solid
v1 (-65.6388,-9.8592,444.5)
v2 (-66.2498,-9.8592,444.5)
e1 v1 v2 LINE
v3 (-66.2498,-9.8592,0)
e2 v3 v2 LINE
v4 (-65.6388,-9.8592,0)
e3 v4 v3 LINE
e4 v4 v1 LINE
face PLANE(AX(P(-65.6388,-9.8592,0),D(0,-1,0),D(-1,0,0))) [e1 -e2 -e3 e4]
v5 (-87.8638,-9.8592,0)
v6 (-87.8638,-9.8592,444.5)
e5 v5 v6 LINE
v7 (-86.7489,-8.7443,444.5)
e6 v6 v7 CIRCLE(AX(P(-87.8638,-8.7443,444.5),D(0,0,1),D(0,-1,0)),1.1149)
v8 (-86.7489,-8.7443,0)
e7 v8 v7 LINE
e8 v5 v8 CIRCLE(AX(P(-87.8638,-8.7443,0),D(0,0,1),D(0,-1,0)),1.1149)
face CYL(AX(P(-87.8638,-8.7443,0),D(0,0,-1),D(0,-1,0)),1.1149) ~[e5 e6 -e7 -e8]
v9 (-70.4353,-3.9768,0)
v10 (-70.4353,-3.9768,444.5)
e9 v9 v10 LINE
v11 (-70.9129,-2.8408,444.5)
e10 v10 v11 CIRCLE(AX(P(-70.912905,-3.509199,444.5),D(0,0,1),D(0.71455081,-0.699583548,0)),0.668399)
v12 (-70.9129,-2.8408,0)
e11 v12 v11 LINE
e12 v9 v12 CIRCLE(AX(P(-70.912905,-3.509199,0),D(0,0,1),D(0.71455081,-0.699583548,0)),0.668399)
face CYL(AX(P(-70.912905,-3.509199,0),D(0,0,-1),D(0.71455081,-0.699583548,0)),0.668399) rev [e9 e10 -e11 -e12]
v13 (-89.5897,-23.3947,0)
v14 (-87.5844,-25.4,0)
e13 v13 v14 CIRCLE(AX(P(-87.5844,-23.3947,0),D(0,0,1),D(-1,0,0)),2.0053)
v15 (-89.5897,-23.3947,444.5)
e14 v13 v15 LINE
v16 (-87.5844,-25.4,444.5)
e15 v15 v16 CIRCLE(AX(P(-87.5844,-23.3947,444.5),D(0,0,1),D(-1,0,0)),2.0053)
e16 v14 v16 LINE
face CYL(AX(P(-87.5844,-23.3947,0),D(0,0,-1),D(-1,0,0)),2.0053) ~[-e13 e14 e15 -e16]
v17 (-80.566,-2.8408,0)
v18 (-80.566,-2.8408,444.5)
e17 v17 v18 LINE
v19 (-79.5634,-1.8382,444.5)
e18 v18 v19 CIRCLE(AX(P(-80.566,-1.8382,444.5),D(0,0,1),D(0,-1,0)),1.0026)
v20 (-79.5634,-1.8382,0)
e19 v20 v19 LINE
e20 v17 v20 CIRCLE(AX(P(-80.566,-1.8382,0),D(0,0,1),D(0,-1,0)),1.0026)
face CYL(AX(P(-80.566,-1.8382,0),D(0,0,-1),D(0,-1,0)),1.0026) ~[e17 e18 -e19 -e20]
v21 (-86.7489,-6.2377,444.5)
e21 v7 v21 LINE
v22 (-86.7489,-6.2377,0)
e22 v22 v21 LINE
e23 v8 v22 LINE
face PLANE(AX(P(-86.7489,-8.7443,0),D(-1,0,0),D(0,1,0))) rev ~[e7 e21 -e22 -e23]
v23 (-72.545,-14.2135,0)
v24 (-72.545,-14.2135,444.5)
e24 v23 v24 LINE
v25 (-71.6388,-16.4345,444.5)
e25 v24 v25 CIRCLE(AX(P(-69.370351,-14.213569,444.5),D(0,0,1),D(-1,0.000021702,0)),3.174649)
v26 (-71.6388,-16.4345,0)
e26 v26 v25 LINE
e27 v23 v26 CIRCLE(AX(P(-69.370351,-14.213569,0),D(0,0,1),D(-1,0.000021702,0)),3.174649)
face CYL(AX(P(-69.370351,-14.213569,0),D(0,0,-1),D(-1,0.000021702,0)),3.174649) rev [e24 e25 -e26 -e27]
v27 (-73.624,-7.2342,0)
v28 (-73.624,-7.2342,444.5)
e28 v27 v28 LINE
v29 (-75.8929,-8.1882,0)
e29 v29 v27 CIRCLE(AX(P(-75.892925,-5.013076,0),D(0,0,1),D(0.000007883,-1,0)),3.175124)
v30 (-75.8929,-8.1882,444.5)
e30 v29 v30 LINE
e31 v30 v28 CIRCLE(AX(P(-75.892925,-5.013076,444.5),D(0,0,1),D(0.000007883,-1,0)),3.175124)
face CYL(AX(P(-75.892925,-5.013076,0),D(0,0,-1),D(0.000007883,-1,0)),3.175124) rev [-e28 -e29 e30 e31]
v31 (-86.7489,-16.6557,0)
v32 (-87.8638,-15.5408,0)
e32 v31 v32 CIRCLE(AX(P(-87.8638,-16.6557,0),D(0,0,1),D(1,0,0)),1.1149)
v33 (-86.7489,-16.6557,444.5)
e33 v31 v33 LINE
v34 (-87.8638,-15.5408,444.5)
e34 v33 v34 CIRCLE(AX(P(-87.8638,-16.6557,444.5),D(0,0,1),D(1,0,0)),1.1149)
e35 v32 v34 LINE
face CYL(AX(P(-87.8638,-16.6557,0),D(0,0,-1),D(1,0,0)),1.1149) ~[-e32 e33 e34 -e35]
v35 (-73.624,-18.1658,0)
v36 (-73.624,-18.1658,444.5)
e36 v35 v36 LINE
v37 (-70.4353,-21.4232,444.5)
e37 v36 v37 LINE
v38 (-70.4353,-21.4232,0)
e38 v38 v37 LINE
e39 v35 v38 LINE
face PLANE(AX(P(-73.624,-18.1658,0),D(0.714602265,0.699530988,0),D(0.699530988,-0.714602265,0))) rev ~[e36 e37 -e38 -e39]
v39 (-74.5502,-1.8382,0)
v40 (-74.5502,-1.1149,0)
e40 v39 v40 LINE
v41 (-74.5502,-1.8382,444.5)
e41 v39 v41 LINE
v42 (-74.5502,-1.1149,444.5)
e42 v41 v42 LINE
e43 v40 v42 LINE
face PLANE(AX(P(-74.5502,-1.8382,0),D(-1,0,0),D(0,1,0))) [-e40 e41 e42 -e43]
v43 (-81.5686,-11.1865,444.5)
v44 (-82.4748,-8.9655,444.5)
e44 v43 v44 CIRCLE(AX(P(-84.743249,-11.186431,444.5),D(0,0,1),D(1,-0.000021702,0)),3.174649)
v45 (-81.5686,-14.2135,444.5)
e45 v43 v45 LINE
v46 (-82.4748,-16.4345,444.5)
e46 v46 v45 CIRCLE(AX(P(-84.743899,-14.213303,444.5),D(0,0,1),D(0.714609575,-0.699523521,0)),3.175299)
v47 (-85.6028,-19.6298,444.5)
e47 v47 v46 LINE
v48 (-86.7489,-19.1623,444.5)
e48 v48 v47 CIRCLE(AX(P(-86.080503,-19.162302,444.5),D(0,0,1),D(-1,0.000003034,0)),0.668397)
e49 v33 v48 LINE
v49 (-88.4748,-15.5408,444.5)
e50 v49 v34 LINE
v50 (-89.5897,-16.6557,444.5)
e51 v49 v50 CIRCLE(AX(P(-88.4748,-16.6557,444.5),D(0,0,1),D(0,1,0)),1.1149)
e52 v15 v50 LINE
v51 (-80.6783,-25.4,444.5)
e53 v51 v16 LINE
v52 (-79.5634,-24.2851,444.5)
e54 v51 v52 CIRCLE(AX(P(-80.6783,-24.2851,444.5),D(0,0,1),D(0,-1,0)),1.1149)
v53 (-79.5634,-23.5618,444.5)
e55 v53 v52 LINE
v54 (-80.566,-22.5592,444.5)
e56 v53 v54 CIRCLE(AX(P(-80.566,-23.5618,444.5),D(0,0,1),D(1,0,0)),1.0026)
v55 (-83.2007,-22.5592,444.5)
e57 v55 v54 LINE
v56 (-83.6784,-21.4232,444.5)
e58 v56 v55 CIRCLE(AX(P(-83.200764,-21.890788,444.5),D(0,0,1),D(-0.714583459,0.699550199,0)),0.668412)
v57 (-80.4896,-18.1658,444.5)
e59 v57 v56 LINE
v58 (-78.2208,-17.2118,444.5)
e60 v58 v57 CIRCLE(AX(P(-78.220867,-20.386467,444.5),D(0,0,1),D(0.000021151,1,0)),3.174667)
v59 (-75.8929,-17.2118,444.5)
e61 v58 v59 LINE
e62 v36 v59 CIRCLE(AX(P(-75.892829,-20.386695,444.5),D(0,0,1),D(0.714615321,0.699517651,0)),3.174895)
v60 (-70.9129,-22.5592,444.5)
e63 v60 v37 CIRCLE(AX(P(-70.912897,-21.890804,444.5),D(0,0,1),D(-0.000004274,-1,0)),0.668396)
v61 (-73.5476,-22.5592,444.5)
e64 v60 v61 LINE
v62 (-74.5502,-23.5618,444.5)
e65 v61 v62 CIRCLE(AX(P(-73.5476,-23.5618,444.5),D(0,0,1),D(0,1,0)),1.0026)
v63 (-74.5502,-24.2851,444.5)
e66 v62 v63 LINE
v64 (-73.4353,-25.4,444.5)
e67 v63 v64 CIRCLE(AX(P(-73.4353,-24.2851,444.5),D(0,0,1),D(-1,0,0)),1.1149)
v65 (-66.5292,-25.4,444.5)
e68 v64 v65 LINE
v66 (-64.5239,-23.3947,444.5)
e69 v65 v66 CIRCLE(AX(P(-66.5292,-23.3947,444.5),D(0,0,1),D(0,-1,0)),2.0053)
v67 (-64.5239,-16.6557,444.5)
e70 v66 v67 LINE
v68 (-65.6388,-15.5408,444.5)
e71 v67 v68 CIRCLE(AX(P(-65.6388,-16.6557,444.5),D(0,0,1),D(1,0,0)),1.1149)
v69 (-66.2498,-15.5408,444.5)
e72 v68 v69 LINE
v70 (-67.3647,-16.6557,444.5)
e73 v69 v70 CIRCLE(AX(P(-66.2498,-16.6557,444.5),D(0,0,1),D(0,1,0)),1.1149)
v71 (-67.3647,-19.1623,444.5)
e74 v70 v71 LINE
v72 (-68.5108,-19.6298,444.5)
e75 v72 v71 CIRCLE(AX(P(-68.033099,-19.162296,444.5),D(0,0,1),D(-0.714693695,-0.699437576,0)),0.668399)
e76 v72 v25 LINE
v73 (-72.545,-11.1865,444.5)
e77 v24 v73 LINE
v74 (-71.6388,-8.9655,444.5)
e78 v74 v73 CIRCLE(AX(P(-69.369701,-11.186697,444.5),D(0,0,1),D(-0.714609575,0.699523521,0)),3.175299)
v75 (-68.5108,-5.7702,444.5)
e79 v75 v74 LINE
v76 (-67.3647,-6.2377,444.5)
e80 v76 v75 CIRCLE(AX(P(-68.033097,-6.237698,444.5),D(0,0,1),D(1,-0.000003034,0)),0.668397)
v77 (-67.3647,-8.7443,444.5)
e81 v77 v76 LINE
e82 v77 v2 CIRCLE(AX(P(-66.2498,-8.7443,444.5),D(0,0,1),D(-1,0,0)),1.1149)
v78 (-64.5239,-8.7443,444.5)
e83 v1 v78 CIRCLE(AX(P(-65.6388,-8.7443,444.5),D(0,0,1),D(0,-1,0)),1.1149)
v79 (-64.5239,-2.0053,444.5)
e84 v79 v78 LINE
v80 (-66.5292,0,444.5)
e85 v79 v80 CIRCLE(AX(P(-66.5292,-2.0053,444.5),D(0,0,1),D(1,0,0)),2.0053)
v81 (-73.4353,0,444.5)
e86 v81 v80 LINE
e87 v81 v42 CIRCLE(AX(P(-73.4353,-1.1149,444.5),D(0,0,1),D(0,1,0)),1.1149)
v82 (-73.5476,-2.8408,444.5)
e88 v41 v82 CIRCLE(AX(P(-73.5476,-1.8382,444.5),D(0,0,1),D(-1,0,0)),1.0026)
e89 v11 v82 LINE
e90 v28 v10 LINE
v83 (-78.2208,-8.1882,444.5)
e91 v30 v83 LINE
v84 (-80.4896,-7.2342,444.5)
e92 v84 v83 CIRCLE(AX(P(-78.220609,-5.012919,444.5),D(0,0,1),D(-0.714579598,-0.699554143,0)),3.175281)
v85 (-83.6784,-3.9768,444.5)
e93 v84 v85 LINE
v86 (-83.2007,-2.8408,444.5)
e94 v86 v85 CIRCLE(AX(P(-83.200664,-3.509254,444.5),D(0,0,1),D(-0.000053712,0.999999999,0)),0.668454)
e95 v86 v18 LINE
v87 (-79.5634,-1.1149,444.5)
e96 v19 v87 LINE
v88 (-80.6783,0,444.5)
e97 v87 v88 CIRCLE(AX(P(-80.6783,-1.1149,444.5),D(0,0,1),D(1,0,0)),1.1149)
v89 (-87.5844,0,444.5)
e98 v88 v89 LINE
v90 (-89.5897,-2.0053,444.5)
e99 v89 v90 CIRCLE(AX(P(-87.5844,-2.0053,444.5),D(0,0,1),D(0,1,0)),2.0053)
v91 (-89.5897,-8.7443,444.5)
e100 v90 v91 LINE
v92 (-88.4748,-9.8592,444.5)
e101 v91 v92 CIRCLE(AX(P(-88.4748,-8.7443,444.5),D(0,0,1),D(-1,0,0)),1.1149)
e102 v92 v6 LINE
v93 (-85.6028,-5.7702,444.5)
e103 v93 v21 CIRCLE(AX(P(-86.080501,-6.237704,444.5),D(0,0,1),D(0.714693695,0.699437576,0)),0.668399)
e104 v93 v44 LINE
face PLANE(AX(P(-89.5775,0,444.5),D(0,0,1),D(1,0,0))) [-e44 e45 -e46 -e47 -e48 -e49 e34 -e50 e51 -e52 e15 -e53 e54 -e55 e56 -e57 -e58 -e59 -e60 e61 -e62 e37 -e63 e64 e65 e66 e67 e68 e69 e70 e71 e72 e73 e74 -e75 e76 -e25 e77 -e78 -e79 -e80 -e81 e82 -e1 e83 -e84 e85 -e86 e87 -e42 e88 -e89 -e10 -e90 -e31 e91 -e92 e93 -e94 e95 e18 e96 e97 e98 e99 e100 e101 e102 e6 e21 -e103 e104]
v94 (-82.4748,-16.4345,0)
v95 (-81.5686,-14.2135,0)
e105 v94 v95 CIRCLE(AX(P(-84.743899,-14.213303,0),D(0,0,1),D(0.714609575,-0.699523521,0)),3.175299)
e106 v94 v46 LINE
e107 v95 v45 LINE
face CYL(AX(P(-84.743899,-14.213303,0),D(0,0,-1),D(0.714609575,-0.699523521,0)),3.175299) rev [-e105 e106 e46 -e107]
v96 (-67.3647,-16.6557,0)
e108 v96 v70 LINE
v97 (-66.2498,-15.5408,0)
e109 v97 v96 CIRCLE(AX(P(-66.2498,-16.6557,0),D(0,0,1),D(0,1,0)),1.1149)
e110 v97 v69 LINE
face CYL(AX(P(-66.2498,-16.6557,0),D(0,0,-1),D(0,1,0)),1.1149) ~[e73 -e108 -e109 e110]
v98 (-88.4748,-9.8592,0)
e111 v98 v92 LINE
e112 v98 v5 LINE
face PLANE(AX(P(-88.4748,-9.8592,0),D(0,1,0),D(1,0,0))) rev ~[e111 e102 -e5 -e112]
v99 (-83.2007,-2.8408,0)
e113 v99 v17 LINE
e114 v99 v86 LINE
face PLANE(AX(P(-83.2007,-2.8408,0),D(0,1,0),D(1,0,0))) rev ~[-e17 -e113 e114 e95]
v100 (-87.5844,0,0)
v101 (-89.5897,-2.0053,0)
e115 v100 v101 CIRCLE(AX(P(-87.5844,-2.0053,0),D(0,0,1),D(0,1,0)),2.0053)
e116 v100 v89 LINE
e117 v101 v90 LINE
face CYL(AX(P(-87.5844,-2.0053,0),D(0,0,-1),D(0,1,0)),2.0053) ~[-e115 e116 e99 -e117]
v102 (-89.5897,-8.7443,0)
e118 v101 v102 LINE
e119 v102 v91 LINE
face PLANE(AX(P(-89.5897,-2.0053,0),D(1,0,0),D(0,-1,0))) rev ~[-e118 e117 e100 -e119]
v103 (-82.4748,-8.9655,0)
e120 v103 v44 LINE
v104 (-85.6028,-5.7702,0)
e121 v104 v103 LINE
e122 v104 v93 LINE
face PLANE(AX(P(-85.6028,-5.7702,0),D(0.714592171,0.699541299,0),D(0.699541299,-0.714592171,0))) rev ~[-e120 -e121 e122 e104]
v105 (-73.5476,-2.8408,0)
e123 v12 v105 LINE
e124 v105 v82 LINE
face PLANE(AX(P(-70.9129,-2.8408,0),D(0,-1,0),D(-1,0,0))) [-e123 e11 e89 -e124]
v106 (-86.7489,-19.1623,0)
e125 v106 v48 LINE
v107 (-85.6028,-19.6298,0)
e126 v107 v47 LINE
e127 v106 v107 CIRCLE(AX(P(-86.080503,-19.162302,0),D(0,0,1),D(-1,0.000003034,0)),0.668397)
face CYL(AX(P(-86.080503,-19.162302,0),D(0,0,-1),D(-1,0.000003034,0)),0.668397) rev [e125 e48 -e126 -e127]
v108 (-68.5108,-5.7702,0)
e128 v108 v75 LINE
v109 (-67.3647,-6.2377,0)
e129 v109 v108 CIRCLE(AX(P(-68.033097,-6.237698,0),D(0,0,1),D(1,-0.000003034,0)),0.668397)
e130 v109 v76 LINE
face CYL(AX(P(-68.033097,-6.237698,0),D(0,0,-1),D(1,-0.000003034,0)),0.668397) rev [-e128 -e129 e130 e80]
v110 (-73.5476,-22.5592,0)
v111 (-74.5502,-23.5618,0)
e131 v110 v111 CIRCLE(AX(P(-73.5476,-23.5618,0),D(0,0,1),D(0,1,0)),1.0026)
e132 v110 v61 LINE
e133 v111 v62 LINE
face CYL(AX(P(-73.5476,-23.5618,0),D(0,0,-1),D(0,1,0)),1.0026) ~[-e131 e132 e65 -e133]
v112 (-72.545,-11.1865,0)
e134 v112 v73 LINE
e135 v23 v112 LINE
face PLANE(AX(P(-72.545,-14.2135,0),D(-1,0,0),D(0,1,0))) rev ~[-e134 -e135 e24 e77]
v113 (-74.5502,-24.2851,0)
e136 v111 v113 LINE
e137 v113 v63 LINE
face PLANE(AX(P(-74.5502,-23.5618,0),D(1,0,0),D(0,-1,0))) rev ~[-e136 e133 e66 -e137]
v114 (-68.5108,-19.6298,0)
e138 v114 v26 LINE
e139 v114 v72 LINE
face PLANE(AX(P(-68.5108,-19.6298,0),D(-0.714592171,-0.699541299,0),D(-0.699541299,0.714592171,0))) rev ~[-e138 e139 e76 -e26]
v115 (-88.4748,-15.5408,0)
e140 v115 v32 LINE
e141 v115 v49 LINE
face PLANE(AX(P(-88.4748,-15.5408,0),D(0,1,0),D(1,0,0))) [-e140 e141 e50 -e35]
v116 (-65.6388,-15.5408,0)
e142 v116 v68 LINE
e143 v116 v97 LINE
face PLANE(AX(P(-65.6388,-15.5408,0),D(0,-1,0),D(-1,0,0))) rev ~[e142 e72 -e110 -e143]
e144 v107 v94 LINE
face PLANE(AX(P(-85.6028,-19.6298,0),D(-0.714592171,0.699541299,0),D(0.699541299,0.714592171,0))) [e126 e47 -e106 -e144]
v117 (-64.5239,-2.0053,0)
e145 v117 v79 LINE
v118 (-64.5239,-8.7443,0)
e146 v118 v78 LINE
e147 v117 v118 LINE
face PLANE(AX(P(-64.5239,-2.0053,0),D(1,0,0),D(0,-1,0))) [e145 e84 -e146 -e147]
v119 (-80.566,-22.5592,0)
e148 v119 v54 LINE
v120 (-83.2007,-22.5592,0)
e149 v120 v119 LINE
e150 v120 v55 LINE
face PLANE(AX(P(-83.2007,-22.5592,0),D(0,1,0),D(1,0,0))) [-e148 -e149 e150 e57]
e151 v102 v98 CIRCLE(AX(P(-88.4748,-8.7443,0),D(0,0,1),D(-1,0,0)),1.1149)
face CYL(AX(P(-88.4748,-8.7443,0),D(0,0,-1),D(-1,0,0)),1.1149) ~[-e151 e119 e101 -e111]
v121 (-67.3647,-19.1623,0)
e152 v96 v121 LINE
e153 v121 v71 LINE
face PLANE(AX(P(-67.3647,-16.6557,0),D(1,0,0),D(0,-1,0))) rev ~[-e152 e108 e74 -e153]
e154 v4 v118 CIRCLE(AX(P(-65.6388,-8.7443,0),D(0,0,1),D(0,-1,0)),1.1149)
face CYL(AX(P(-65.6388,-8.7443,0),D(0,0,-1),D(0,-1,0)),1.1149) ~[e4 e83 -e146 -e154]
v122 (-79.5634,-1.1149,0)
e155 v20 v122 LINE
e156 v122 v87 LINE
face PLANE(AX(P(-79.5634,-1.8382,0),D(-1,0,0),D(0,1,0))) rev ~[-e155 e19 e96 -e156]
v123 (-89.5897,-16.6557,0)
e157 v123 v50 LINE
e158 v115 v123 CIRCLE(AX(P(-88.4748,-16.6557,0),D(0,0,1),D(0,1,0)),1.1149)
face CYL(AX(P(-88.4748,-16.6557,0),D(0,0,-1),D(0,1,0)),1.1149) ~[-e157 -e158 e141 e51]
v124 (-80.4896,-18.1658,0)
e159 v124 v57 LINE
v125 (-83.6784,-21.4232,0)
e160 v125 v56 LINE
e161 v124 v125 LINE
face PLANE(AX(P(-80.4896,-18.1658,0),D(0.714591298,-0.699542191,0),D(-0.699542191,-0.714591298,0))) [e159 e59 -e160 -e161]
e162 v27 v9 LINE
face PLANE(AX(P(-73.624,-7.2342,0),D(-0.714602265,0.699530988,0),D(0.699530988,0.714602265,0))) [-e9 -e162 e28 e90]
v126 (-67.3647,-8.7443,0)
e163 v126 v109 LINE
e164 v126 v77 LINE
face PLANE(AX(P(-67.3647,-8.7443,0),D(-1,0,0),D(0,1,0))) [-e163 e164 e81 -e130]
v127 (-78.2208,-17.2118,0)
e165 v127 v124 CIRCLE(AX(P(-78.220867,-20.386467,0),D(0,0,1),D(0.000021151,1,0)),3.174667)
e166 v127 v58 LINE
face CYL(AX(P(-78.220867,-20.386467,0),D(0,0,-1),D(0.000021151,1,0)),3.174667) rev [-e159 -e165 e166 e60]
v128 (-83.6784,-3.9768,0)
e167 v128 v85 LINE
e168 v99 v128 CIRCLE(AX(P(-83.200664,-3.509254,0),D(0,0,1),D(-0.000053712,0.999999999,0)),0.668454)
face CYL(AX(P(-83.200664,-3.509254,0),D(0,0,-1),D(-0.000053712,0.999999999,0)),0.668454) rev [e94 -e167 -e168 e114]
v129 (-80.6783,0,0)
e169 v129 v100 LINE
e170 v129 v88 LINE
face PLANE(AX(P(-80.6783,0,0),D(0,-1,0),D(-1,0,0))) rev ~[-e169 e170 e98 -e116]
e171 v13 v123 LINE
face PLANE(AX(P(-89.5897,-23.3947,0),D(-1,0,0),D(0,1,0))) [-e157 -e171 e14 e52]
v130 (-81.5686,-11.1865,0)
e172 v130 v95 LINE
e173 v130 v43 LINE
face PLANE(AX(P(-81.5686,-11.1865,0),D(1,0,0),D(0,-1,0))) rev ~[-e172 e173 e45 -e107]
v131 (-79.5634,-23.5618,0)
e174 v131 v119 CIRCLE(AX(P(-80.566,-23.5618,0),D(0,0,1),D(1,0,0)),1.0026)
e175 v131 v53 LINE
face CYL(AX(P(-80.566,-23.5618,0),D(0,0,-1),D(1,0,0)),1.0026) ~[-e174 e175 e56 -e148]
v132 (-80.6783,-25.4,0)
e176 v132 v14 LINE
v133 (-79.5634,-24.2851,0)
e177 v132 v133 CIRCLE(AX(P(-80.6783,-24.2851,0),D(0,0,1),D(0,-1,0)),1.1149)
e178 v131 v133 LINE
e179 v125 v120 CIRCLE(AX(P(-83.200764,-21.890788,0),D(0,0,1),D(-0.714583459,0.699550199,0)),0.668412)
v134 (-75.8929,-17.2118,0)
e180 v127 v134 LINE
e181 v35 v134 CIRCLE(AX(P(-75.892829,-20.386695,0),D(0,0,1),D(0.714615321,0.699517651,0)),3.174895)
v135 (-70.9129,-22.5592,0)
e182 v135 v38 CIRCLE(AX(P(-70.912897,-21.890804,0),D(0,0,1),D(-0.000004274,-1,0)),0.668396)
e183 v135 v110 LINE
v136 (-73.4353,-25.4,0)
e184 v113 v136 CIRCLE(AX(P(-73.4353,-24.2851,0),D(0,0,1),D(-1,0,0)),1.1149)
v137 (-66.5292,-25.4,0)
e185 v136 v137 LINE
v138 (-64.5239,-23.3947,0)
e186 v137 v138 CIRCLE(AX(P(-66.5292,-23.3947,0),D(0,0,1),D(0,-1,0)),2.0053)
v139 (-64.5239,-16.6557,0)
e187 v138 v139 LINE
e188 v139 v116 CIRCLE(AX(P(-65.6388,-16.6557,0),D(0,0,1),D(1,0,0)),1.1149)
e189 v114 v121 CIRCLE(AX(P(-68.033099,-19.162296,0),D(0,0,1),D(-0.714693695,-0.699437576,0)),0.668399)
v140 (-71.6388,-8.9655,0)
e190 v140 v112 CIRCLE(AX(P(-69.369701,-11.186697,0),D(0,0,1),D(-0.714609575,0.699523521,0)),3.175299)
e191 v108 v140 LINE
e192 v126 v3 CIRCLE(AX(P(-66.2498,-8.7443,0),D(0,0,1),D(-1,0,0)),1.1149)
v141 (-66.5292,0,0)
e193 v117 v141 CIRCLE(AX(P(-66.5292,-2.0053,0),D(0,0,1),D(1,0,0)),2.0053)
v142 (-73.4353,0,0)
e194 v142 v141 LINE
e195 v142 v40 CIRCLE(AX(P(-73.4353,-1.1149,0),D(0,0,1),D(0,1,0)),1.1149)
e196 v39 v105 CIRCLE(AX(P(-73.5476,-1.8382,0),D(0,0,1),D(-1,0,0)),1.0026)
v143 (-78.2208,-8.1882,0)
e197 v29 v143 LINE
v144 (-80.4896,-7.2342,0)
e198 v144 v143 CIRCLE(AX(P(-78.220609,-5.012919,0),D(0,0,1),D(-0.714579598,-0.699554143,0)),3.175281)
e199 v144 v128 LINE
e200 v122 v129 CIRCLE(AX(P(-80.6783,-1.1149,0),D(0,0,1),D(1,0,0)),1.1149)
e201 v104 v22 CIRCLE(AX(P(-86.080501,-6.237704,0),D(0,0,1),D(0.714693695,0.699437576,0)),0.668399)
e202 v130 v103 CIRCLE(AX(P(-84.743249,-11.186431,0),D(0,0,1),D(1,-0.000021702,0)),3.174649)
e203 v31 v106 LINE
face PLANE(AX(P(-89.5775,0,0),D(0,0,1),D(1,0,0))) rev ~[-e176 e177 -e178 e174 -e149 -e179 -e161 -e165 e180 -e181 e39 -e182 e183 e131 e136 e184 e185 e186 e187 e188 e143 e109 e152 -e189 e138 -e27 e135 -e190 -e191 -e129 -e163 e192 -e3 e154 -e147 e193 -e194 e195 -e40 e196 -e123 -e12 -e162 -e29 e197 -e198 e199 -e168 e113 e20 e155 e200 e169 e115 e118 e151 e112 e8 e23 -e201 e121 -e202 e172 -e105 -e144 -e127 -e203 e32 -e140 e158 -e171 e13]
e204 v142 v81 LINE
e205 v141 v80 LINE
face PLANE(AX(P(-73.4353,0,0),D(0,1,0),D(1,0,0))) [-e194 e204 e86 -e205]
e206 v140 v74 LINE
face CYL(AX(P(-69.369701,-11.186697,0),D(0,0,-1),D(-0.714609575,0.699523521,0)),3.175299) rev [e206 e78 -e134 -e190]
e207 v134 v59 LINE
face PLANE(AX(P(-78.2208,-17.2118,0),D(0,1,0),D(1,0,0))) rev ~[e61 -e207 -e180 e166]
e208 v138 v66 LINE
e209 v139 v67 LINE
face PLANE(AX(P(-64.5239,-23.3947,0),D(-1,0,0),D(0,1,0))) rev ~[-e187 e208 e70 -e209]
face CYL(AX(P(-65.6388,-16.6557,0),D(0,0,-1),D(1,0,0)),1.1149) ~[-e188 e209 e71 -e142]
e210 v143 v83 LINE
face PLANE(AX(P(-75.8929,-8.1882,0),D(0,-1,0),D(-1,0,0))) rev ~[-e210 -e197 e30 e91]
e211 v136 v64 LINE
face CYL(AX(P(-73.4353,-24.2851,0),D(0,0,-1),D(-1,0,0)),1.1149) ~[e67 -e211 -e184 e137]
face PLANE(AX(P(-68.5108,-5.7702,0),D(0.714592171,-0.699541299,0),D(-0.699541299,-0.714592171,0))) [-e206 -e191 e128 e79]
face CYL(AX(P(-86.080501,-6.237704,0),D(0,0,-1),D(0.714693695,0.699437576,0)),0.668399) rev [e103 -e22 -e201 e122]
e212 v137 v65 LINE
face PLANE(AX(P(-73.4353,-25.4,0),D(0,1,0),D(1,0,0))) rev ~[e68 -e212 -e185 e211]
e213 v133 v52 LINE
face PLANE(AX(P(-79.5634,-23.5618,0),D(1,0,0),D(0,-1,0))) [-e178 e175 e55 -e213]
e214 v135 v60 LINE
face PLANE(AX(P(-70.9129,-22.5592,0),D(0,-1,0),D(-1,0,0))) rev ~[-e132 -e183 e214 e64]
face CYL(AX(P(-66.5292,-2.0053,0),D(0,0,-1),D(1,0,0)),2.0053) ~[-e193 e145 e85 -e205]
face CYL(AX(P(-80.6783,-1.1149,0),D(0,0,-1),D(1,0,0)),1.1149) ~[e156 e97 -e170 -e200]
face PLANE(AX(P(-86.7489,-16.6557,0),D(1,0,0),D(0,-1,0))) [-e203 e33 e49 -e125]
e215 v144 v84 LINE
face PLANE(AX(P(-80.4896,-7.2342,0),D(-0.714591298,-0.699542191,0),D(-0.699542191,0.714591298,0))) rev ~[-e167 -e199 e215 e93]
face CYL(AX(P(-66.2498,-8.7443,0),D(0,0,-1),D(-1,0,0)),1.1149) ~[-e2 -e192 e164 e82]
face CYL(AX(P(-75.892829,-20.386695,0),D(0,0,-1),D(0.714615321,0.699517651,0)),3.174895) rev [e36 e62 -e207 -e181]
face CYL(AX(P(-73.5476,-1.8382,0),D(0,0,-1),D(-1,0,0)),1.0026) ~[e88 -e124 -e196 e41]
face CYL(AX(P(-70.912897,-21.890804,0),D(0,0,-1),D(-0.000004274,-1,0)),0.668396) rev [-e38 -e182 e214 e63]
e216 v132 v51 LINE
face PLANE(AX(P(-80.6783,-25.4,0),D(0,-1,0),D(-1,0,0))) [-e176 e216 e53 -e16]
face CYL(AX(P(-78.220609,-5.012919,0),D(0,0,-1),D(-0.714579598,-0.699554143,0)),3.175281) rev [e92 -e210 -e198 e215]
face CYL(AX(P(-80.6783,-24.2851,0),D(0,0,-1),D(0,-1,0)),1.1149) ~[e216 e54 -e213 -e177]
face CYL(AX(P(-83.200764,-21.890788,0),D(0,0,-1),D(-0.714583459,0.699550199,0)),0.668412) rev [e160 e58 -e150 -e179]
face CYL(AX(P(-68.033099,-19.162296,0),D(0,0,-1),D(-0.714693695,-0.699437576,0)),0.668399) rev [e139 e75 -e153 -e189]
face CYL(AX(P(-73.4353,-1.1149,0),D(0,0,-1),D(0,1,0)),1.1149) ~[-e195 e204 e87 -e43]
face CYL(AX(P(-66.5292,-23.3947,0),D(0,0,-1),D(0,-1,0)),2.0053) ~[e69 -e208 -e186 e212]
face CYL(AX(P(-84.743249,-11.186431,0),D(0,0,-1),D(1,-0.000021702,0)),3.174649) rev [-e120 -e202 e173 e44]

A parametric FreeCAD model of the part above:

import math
import FreeCAD as App
import Part
import Sketcher
Q = App.Units.Quantity

doc = App.newDocument("Part")
body = doc.addObject("PartDesign::Body", "Body")

sketch1 = body.newObject("Sketcher::SketchObject", "Sketch")
sketch1.AttachmentSupport = (doc.getObject("XY_Plane"), [""])
sketch1.MapMode = "FlatFace"
sketch1.addGeometry(Part.ArcOfCircle(Part.Circle(App.Vector(-70.9, -3.5, 0), App.Vector(0, 0, 1), 0.7), math.radians(-44), math.radians(90)), False)
sketch1.addGeometry(Part.LineSegment(App.Vector(-70.4, -4, 0), App.Vector(-73.6, -7.2, 0)), False)
sketch1.addGeometry(Part.ArcOfCircle(Part.Circle(App.Vector(-75.9, -5, 0), App.Vector(0, 0, 1), 3.2), math.radians(-90), math.radians(-44)), False)
sketch1.addGeometry(Part.LineSegment(App.Vector(-75.9, -8.2, 0), App.Vector(-78.2, -8.2, 0)), False)
sketch1.addGeometry(Part.ArcOfCircle(Part.Circle(App.Vector(-78.2, -5, 0), App.Vector(0, 0, 1), 3.2), math.radians(-136), math.radians(-90)), False)
sketch1.addGeometry(Part.LineSegment(App.Vector(-80.5, -7.2, 0), App.Vector(-83.7, -4, 0)), False)
sketch1.addGeometry(Part.ArcOfCircle(Part.Circle(App.Vector(-83.2, -3.5, 0), App.Vector(0, 0, 1), 0.7), math.radians(90), math.radians(224)), False)
sketch1.addGeometry(Part.LineSegment(App.Vector(-83.2, -2.8, 0), App.Vector(-80.6, -2.8, 0)), False)
sketch1.addGeometry(Part.ArcOfCircle(Part.Circle(App.Vector(-80.6, -1.8, 0), App.Vector(0, 0, 1), 1), math.radians(-90), math.radians(0)), False)
sketch1.addGeometry(Part.LineSegment(App.Vector(-79.6, -1.8, 0), App.Vector(-79.6, -1.1, 0)), False)
sketch1.addGeometry(Part.ArcOfCircle(Part.Circle(App.Vector(-80.7, -1.1, 0), App.Vector(0, 0, 1), 1.1), math.radians(0), math.radians(90)), False)
sketch1.addGeometry(Part.LineSegment(App.Vector(-80.7, 0, 0), App.Vector(-87.6, 0, 0)), False)
sketch1.addGeometry(Part.ArcOfCircle(Part.Circle(App.Vector(-87.6, -2, 0), App.Vector(0, 0, 1), 2), math.radians(90), math.radians(180)), False)
sketch1.addGeometry(Part.LineSegment(App.Vector(-89.6, -2, 0), App.Vector(-89.6, -8.7, 0)), False)
sketch1.addGeometry(Part.ArcOfCircle(Part.Circle(App.Vector(-88.5, -8.7, 0), App.Vector(0, 0, 1), 1.1), math.radians(180), math.radians(270)), False)
sketch1.addGeometry(Part.LineSegment(App.Vector(-88.5, -9.9, 0), App.Vector(-87.9, -9.9, 0)), False)
sketch1.addGeometry(Part.ArcOfCircle(Part.Circle(App.Vector(-87.9, -8.7, 0), App.Vector(0, 0, 1), 1.1), math.radians(-90), math.radians(0)), False)
sketch1.addGeometry(Part.LineSegment(App.Vector(-86.7, -8.7, 0), App.Vector(-86.7, -6.2, 0)), False)
sketch1.addGeometry(Part.ArcOfCircle(Part.Circle(App.Vector(-86.1, -6.2, 0), App.Vector(0, 0, 1), 0.7), math.radians(44), math.radians(180)), False)
sketch1.addGeometry(Part.LineSegment(App.Vector(-85.6, -5.8, 0), App.Vector(-82.5, -9, 0)), False)
sketch1.addGeometry(Part.ArcOfCircle(Part.Circle(App.Vector(-84.7, -11.2, 0), App.Vector(0, 0, 1), 3.2), math.radians(0), math.radians(44)), False)
sketch1.addGeometry(Part.LineSegment(App.Vector(-81.6, -11.2, 0), App.Vector(-81.6, -14.2, 0)), False)
sketch1.addGeometry(Part.ArcOfCircle(Part.Circle(App.Vector(-84.7, -14.2, 0), App.Vector(0, 0, 1), 3.2), math.radians(-44), math.radians(0)), False)
sketch1.addGeometry(Part.LineSegment(App.Vector(-82.5, -16.4, 0), App.Vector(-85.6, -19.6, 0)), False)
sketch1.addGeometry(Part.ArcOfCircle(Part.Circle(App.Vector(-86.1, -19.2, 0), App.Vector(0, 0, 1), 0.7), math.radians(180), math.radians(316)), False)
sketch1.addGeometry(Part.LineSegment(App.Vector(-86.7, -19.2, 0), App.Vector(-86.7, -16.7, 0)), False)
sketch1.addGeometry(Part.ArcOfCircle(Part.Circle(App.Vector(-87.9, -16.7, 0), App.Vector(0, 0, 1), 1.1), math.radians(0), math.radians(90)), False)
sketch1.addGeometry(Part.LineSegment(App.Vector(-87.9, -15.5, 0), App.Vector(-88.5, -15.5, 0)), False)
sketch1.addGeometry(Part.ArcOfCircle(Part.Circle(App.Vector(-88.5, -16.7, 0), App.Vector(0, 0, 1), 1.1), math.radians(90), math.radians(180)), False)
sketch1.addGeometry(Part.LineSegment(App.Vector(-89.6, -16.7, 0), App.Vector(-89.6, -23.4, 0)), False)
sketch1.addGeometry(Part.ArcOfCircle(Part.Circle(App.Vector(-87.6, -23.4, 0), App.Vector(0, 0, 1), 2), math.radians(180), math.radians(270)), False)
sketch1.addGeometry(Part.LineSegment(App.Vector(-87.6, -25.4, 0), App.Vector(-80.7, -25.4, 0)), False)
sketch1.addGeometry(Part.ArcOfCircle(Part.Circle(App.Vector(-80.7, -24.3, 0), App.Vector(0, 0, 1), 1.1), math.radians(-90), math.radians(0)), False)
sketch1.addGeometry(Part.LineSegment(App.Vector(-79.6, -24.3, 0), App.Vector(-79.6, -23.6, 0)), False)
sketch1.addGeometry(Part.ArcOfCircle(Part.Circle(App.Vector(-80.6, -23.6, 0), App.Vector(0, 0, 1), 1), math.radians(0), math.radians(90)), False)
sketch1.addGeometry(Part.LineSegment(App.Vector(-80.6, -22.6, 0), App.Vector(-83.2, -22.6, 0)), False)
sketch1.addGeometry(Part.ArcOfCircle(Part.Circle(App.Vector(-83.2, -21.9, 0), App.Vector(0, 0, 1), 0.7), math.radians(136), math.radians(270)), False)
sketch1.addGeometry(Part.LineSegment(App.Vector(-83.7, -21.4, 0), App.Vector(-80.5, -18.2, 0)), False)
sketch1.addGeometry(Part.ArcOfCircle(Part.Circle(App.Vector(-78.2, -20.4, 0), App.Vector(0, 0, 1), 3.2), math.radians(90), math.radians(136)), False)
sketch1.addGeometry(Part.LineSegment(App.Vector(-78.2, -17.2, 0), App.Vector(-75.9, -17.2, 0)), False)
sketch1.addGeometry(Part.ArcOfCircle(Part.Circle(App.Vector(-75.9, -20.4, 0), App.Vector(0, 0, 1), 3.2), math.radians(44), math.radians(90)), False)
sketch1.addGeometry(Part.LineSegment(App.Vector(-73.6, -18.2, 0), App.Vector(-70.4, -21.4, 0)), False)
sketch1.addGeometry(Part.ArcOfCircle(Part.Circle(App.Vector(-70.9, -21.9, 0), App.Vector(0, 0, 1), 0.7), math.radians(-90), math.radians(44)), False)
sketch1.addGeometry(Part.LineSegment(App.Vector(-70.9, -22.6, 0), App.Vector(-73.5, -22.6, 0)), False)
sketch1.addGeometry(Part.ArcOfCircle(Part.Circle(App.Vector(-73.5, -23.6, 0), App.Vector(0, 0, 1), 1), math.radians(90), math.radians(180)), False)
sketch1.addGeometry(Part.LineSegment(App.Vector(-74.6, -23.6, 0), App.Vector(-74.6, -24.3, 0)), False)
sketch1.addGeometry(Part.ArcOfCircle(Part.Circle(App.Vector(-73.4, -24.3, 0), App.Vector(0, 0, 1), 1.1), math.radians(180), math.radians(270)), False)
sketch1.addGeometry(Part.LineSegment(App.Vector(-73.4, -25.4, 0), App.Vector(-66.5, -25.4, 0)), False)
sketch1.addGeometry(Part.ArcOfCircle(Part.Circle(App.Vector(-66.5, -23.4, 0), App.Vector(0, 0, 1), 2), math.radians(-90), math.radians(0)), False)
sketch1.addGeometry(Part.LineSegment(App.Vector(-64.5, -23.4, 0), App.Vector(-64.5, -16.7, 0)), False)
sketch1.addGeometry(Part.ArcOfCircle(Part.Circle(App.Vector(-65.6, -16.7, 0), App.Vector(0, 0, 1), 1.1), math.radians(0), math.radians(90)), False)
sketch1.addGeometry(Part.LineSegment(App.Vector(-65.6, -15.5, 0), App.Vector(-66.2, -15.5, 0)), False)
sketch1.addGeometry(Part.ArcOfCircle(Part.Circle(App.Vector(-66.2, -16.7, 0), App.Vector(0, 0, 1), 1.1), math.radians(90), math.radians(180)), False)
sketch1.addGeometry(Part.LineSegment(App.Vector(-67.4, -16.7, 0), App.Vector(-67.4, -19.2, 0)), False)
sketch1.addGeometry(Part.ArcOfCircle(Part.Circle(App.Vector(-68, -19.2, 0), App.Vector(0, 0, 1), 0.7), math.radians(-136), math.radians(0)), False)
sketch1.addGeometry(Part.LineSegment(App.Vector(-68.5, -19.6, 0), App.Vector(-71.6, -16.4, 0)), False)
sketch1.addGeometry(Part.ArcOfCircle(Part.Circle(App.Vector(-69.4, -14.2, 0), App.Vector(0, 0, 1), 3.2), math.radians(180), math.radians(224)), False)
sketch1.addGeometry(Part.LineSegment(App.Vector(-72.5, -14.2, 0), App.Vector(-72.5, -11.2, 0)), False)
sketch1.addGeometry(Part.ArcOfCircle(Part.Circle(App.Vector(-69.4, -11.2, 0), App.Vector(0, 0, 1), 3.2), math.radians(136), math.radians(180)), False)
sketch1.addGeometry(Part.LineSegment(App.Vector(-71.6, -9, 0), App.Vector(-68.5, -5.8, 0)), False)
sketch1.addGeometry(Part.ArcOfCircle(Part.Circle(App.Vector(-68, -6.2, 0), App.Vector(0, 0, 1), 0.7), math.radians(0), math.radians(136)), False)
sketch1.addGeometry(Part.LineSegment(App.Vector(-67.4, -6.2, 0), App.Vector(-67.4, -8.7, 0)), False)
sketch1.addGeometry(Part.ArcOfCircle(Part.Circle(App.Vector(-66.2, -8.7, 0), App.Vector(0, 0, 1), 1.1), math.radians(180), math.radians(270)), False)
sketch1.addGeometry(Part.LineSegment(App.Vector(-66.2, -9.9, 0), App.Vector(-65.6, -9.9, 0)), False)
sketch1.addGeometry(Part.ArcOfCircle(Part.Circle(App.Vector(-65.6, -8.7, 0), App.Vector(0, 0, 1), 1.1), math.radians(-90), math.radians(0)), False)
sketch1.addGeometry(Part.LineSegment(App.Vector(-64.5, -8.7, 0), App.Vector(-64.5, -2, 0)), False)
sketch1.addGeometry(Part.ArcOfCircle(Part.Circle(App.Vector(-66.5, -2, 0), App.Vector(0, 0, 1), 2), math.radians(0), math.radians(90)), False)
sketch1.addGeometry(Part.LineSegment(App.Vector(-66.5, 0, 0), App.Vector(-73.4, 0, 0)), False)
sketch1.addGeometry(Part.ArcOfCircle(Part.Circle(App.Vector(-73.4, -1.1, 0), App.Vector(0, 0, 1), 1.1), math.radians(90), math.radians(180)), False)
sketch1.addGeometry(Part.LineSegment(App.Vector(-74.6, -1.1, 0), App.Vector(-74.6, -1.8, 0)), False)
sketch1.addGeometry(Part.ArcOfCircle(Part.Circle(App.Vector(-73.5, -1.8, 0), App.Vector(0, 0, 1), 1), math.radians(180), math.radians(270)), False)
sketch1.addGeometry(Part.LineSegment(App.Vector(-73.5, -2.8, 0), App.Vector(-70.9, -2.8, 0)), False)
sketch1.addConstraint(Sketcher.Constraint("Tangent", 0, 1, 1, 1))
sketch1.addConstraint(Sketcher.Constraint("Tangent", 1, 2, 2, 2))
sketch1.addConstraint(Sketcher.Constraint("Tangent", 2, 1, 3, 1))
sketch1.addConstraint(Sketcher.Constraint("Tangent", 3, 2, 4, 2))
sketch1.addConstraint(Sketcher.Constraint("Tangent", 4, 1, 5, 1))
sketch1.addConstraint(Sketcher.Constraint("Tangent", 5, 2, 6, 2))
sketch1.addConstraint(Sketcher.Constraint("Tangent", 6, 1, 7, 1))
sketch1.addConstraint(Sketcher.Constraint("Tangent", 7, 2, 8, 1))
sketch1.addConstraint(Sketcher.Constraint("Tangent", 8, 2, 9, 1))
sketch1.addConstraint(Sketcher.Constraint("Tangent", 9, 2, 10, 1))
sketch1.addConstraint(Sketcher.Constraint("Tangent", 10, 2, 11, 1))
sketch1.addConstraint(Sketcher.Constraint("Tangent", 11, 2, 12, 1))
sketch1.addConstraint(Sketcher.Constraint("Tangent", 12, 2, 13, 1))
sketch1.addConstraint(Sketcher.Constraint("Tangent", 13, 2, 14, 1))
sketch1.addConstraint(Sketcher.Constraint("Tangent", 14, 2, 15, 1))
sketch1.addConstraint(Sketcher.Constraint("Tangent", 15, 2, 16, 1))
sketch1.addConstraint(Sketcher.Constraint("Tangent", 16, 2, 17, 1))
sketch1.addConstraint(Sketcher.Constraint("Tangent", 17, 2, 18, 2))
sketch1.addConstraint(Sketcher.Constraint("Tangent", 18, 1, 19, 1))
sketch1.addConstraint(Sketcher.Constraint("Tangent", 19, 2, 20, 2))
sketch1.addConstraint(Sketcher.Constraint("Tangent", 20, 1, 21, 1))
sketch1.addConstraint(Sketcher.Constraint("Tangent", 21, 2, 22, 2))
sketch1.addConstraint(Sketcher.Constraint("Tangent", 22, 1, 23, 1))
sketch1.addConstraint(Sketcher.Constraint("Tangent", 23, 2, 24, 2))
sketch1.addConstraint(Sketcher.Constraint("Tangent", 24, 1, 25, 1))
sketch1.addConstraint(Sketcher.Constraint("Tangent", 25, 2, 26, 1))
sketch1.addConstraint(Sketcher.Constraint("Tangent", 26, 2, 27, 1))
sketch1.addConstraint(Sketcher.Constraint("Tangent", 27, 2, 28, 1))
sketch1.addConstraint(Sketcher.Constraint("Tangent", 28, 2, 29, 1))
sketch1.addConstraint(Sketcher.Constraint("Tangent", 29, 2, 30, 1))
sketch1.addConstraint(Sketcher.Constraint("Tangent", 30, 2, 31, 1))
sketch1.addConstraint(Sketcher.Constraint("Tangent", 31, 2, 32, 1))
sketch1.addConstraint(Sketcher.Constraint("Tangent", 32, 2, 33, 1))
sketch1.addConstraint(Sketcher.Constraint("Tangent", 33, 2, 34, 1))
sketch1.addConstraint(Sketcher.Constraint("Tangent", 34, 2, 35, 1))
sketch1.addConstraint(Sketcher.Constraint("Tangent", 35, 2, 36, 2))
sketch1.addConstraint(Sketcher.Constraint("Tangent", 36, 1, 37, 1))
sketch1.addConstraint(Sketcher.Constraint("Tangent", 37, 2, 38, 2))
sketch1.addConstraint(Sketcher.Constraint("Tangent", 38, 1, 39, 1))
sketch1.addConstraint(Sketcher.Constraint("Tangent", 39, 2, 40, 2))
sketch1.addConstraint(Sketcher.Constraint("Tangent", 40, 1, 41, 1))
sketch1.addConstraint(Sketcher.Constraint("Tangent", 41, 2, 42, 2))
sketch1.addConstraint(Sketcher.Constraint("Tangent", 42, 1, 43, 1))
sketch1.addConstraint(Sketcher.Constraint("Tangent", 43, 2, 44, 1))
sketch1.addConstraint(Sketcher.Constraint("Tangent", 44, 2, 45, 1))
sketch1.addConstraint(Sketcher.Constraint("Tangent", 45, 2, 46, 1))
sketch1.addConstraint(Sketcher.Constraint("Tangent", 46, 2, 47, 1))
sketch1.addConstraint(Sketcher.Constraint("Tangent", 47, 2, 48, 1))
sketch1.addConstraint(Sketcher.Constraint("Tangent", 48, 2, 49, 1))
sketch1.addConstraint(Sketcher.Constraint("Tangent", 49, 2, 50, 1))
sketch1.addConstraint(Sketcher.Constraint("Tangent", 50, 2, 51, 1))
sketch1.addConstraint(Sketcher.Constraint("Tangent", 51, 2, 52, 1))
sketch1.addConstraint(Sketcher.Constraint("Tangent", 52, 2, 53, 1))
sketch1.addConstraint(Sketcher.Constraint("Tangent", 53, 2, 54, 2))
sketch1.addConstraint(Sketcher.Constraint("Tangent", 54, 1, 55, 1))
sketch1.addConstraint(Sketcher.Constraint("Tangent", 55, 2, 56, 2))
sketch1.addConstraint(Sketcher.Constraint("Tangent", 56, 1, 57, 1))
sketch1.addConstraint(Sketcher.Constraint("Tangent", 57, 2, 58, 2))
sketch1.addConstraint(Sketcher.Constraint("Tangent", 58, 1, 59, 1))
sketch1.addConstraint(Sketcher.Constraint("Tangent", 59, 2, 60, 2))
sketch1.addConstraint(Sketcher.Constraint("Tangent", 60, 1, 61, 1))
sketch1.addConstraint(Sketcher.Constraint("Tangent", 61, 2, 62, 1))
sketch1.addConstraint(Sketcher.Constraint("Tangent", 62, 2, 63, 1))
sketch1.addConstraint(Sketcher.Constraint("Tangent", 63, 2, 64, 1))
sketch1.addConstraint(Sketcher.Constraint("Tangent", 64, 2, 65, 1))
sketch1.addConstraint(Sketcher.Constraint("Tangent", 65, 2, 66, 1))
sketch1.addConstraint(Sketcher.Constraint("Tangent", 66, 2, 67, 1))
sketch1.addConstraint(Sketcher.Constraint("Tangent", 67, 2, 68, 1))
sketch1.addConstraint(Sketcher.Constraint("Tangent", 68, 2, 69, 1))
sketch1.addConstraint(Sketcher.Constraint("Tangent", 69, 2, 70, 1))
sketch1.addConstraint(Sketcher.Constraint("Tangent", 70, 2, 71, 1))
sketch1.addConstraint(Sketcher.Constraint("Tangent", 71, 2, 0, 2))
sketch1.addConstraint(Sketcher.Constraint("Horizontal", 3))
sketch1.addConstraint(Sketcher.Constraint("Horizontal", 7))
sketch1.addConstraint(Sketcher.Constraint("Vertical", 9))
sketch1.addConstraint(Sketcher.Constraint("Horizontal", 11))
sketch1.addConstraint(Sketcher.Constraint("Vertical", 13))
sketch1.addConstraint(Sketcher.Constraint("Horizontal", 15))
sketch1.addConstraint(Sketcher.Constraint("Vertical", 17))
sketch1.addConstraint(Sketcher.Constraint("Vertical", 21))
sketch1.addConstraint(Sketcher.Constraint("Vertical", 25))
sketch1.addConstraint(Sketcher.Constraint("Horizontal", 27))
sketch1.addConstraint(Sketcher.Constraint("Vertical", 29))
sketch1.addConstraint(Sketcher.Constraint("Horizontal", 31))
sketch1.addConstraint(Sketcher.Constraint("Vertical", 33))
sketch1.addConstraint(Sketcher.Constraint("Horizontal", 35))
sketch1.addConstraint(Sketcher.Constraint("Horizontal", 39))
sketch1.addConstraint(Sketcher.Constraint("Horizontal", 43))
sketch1.addConstraint(Sketcher.Constraint("Vertical", 45))
sketch1.addConstraint(Sketcher.Constraint("Horizontal", 47))
sketch1.addConstraint(Sketcher.Constraint("Vertical", 49))
sketch1.addConstraint(Sketcher.Constraint("Horizontal", 51))
sketch1.addConstraint(Sketcher.Constraint("Vertical", 53))
sketch1.addConstraint(Sketcher.Constraint("Vertical", 57))
sketch1.addConstraint(Sketcher.Constraint("Vertical", 61))
sketch1.addConstraint(Sketcher.Constraint("Horizontal", 63))
sketch1.addConstraint(Sketcher.Constraint("Vertical", 65))
sketch1.addConstraint(Sketcher.Constraint("Horizontal", 67))
sketch1.addConstraint(Sketcher.Constraint("Vertical", 69))
sketch1.addConstraint(Sketcher.Constraint("Horizontal", 71))
sketch1.addConstraint(Sketcher.Constraint("Equal", 2, 4))
sketch1.addConstraint(Sketcher.Constraint("Equal", 0, 6))
sketch1.addConstraint(Sketcher.Constraint("Equal", 10, 14))
sketch1.addConstraint(Sketcher.Constraint("Equal", 14, 16))
sketch1.addConstraint(Sketcher.Constraint("Equal", 6, 18))
sketch1.addConstraint(Sketcher.Constraint("Equal", 4, 20))
sketch1.addConstraint(Sketcher.Constraint("Equal", 20, 22))
sketch1.addConstraint(Sketcher.Constraint("Equal", 18, 24))
sketch1.addConstraint(Sketcher.Constraint("Equal", 16, 26))
sketch1.addConstraint(Sketcher.Constraint("Equal", 26, 28))
sketch1.addConstraint(Sketcher.Constraint("Equal", 12, 30))
sketch1.addConstraint(Sketcher.Constraint("Equal", 28, 32))
sketch1.addConstraint(Sketcher.Constraint("Equal", 8, 34))
sketch1.addConstraint(Sketcher.Constraint("Equal", 24, 36))
sketch1.addConstraint(Sketcher.Constraint("Equal", 22, 38))
sketch1.addConstraint(Sketcher.Constraint("Equal", 38, 40))
sketch1.addConstraint(Sketcher.Constraint("Equal", 36, 42))
sketch1.addConstraint(Sketcher.Constraint("Equal", 34, 44))
sketch1.addConstraint(Sketcher.Constraint("Equal", 32, 46))
sketch1.addConstraint(Sketcher.Constraint("Equal", 30, 48))
sketch1.addConstraint(Sketcher.Constraint("Equal", 46, 50))
sketch1.addConstraint(Sketcher.Constraint("Equal", 50, 52))
sketch1.addConstraint(Sketcher.Constraint("Equal", 42, 54))
sketch1.addConstraint(Sketcher.Constraint("Equal", 40, 56))
sketch1.addConstraint(Sketcher.Constraint("Equal", 56, 58))
sketch1.addConstraint(Sketcher.Constraint("Equal", 54, 60))
sketch1.addConstraint(Sketcher.Constraint("Equal", 52, 62))
sketch1.addConstraint(Sketcher.Constraint("Equal", 62, 64))
sketch1.addConstraint(Sketcher.Constraint("Equal", 48, 66))
sketch1.addConstraint(Sketcher.Constraint("Equal", 64, 68))
sketch1.addConstraint(Sketcher.Constraint("Equal", 44, 70))
sketch1.addConstraint(Sketcher.Constraint("PointOnObject", 10, 2, -1))
sketch1.addConstraint(Sketcher.Constraint("PointOnObject", 66, 2, -1))
sketch1.addConstraint(Sketcher.Constraint("Parallel", 5, 19))
sketch1.addConstraint(Sketcher.Constraint("Parallel", 1, 23))
sketch1.addConstraint(Sketcher.Constraint("Parallel", 23, 37))
sketch1.addConstraint(Sketcher.Constraint("Parallel", 19, 41))
sketch1.addConstraint(Sketcher.Constraint("Parallel", 41, 55))
sketch1.addConstraint(Sketcher.Constraint("Parallel", 37, 59))
sketch1.addConstraint(Sketcher.Constraint("Horizontal", 0, 3, 6, 3))
sketch1.addConstraint(Sketcher.Constraint("Horizontal", 36, 3, 42, 3))
sketch1.addConstraint(Sketcher.Constraint("Horizontal", 32, 3, 46, 3))
sketch1.addConstraint(Sketcher.Constraint("Horizontal", 28, 3, 50, 3))
sketch1.addConstraint(Sketcher.Constraint("Horizontal", 24, 3, 54, 3))
sketch1.addConstraint(Sketcher.Constraint("Horizontal", 22, 3, 56, 3))
sketch1.addConstraint(Sketcher.Constraint("Horizontal", 20, 3, 58, 3))
sketch1.addConstraint(Sketcher.Constraint("Horizontal", 18, 3, 60, 3))
sketch1.addConstraint(Sketcher.Constraint("Horizontal", 16, 3, 62, 3))
sketch1.addConstraint(Sketcher.Constraint("Horizontal", 1, 2, 4, 1))
sketch1.addConstraint(Sketcher.Constraint("Vertical", 18, 3, 24, 3))
sketch1.addConstraint(Sketcher.Constraint("Vertical", 14, 3, 28, 3))
sketch1.addConstraint(Sketcher.Constraint("Vertical", 10, 3, 32, 3))
sketch1.addConstraint(Sketcher.Constraint("Vertical", 6, 3, 36, 3))
sketch1.addConstraint(Sketcher.Constraint("Vertical", 4, 3, 38, 3))
sketch1.addConstraint(Sketcher.Constraint("Vertical", 2, 3, 40, 3))
sketch1.addConstraint(Sketcher.Constraint("Vertical", 50, 3, 64, 3))
sketch1.addConstraint(Sketcher.Constraint("Vertical", 46, 3, 68, 3))
sketch1.addConstraint(Sketcher.Constraint("Equal", 35, 43))
sketch1.addConstraint(Sketcher.Constraint("Equal", 31, 47))
sketch1.addConstraint(Sketcher.Constraint("Equal", 27, 51))
sketch1.addConstraint(Sketcher.Constraint("Equal", 17, 25))
sketch1.addConstraint(Sketcher.Constraint("Equal", 13, 29))
sketch1.addConstraint(Sketcher.Constraint("Equal", 9, 33))
sketch1.addConstraint(Sketcher.Constraint("DistanceY", 30, 2, -1, 1, Q("1 in")))
sketch1.addConstraint(Sketcher.Constraint("Radius", 2, Q("0.125 in")))
sketch1.addConstraint(Sketcher.Constraint("Radius", 10, Q("0.0439 in")))
sketch1.addConstraint(Sketcher.Constraint("Angle", 1, Q("-134.3894 deg")))
sketch1.addConstraint(Sketcher.Constraint("Radius", 0, Q("0.6684 mm")))
sketch1.addConstraint(Sketcher.Constraint("Radius", 8, Q("1.0026 mm")))
sketch1.addConstraint(Sketcher.Constraint("Radius", 12, Q("2.0053 mm")))
sketch1.addConstraint(Sketcher.Constraint("DistanceX", 11, 2, 11, 1, Q("0.2719 in")))
sketch1.addConstraint(Sketcher.Constraint("DistanceX", 18, 3, -1, 1, Q("3.389 in")))
sketch1.addConstraint(Sketcher.Constraint("DistanceX", 3, 2, 3, 1, Q("2.328 mm")))
sketch1.addConstraint(Sketcher.Constraint("DistanceX", 7, 1, 7, 2, Q("2.6347 mm")))
sketch1.addConstraint(Sketcher.Constraint("DistanceX", 15, 1, 15, 2, Q("0.611 mm")))
sketch1.addConstraint(Sketcher.Constraint("DistanceY", 9, 1, 9, 2, Q("0.7233 mm")))
sketch1.addConstraint(Sketcher.Constraint("DistanceY", 13, 2, 13, 1, Q("6.739 mm")))
sketch1.addConstraint(Sketcher.Constraint("DistanceY", 17, 1, 17, 2, Q("2.5066 mm")))
sketch1.addConstraint(Sketcher.Constraint("DistanceY", 21, 2, 21, 1, Q("3.027 mm")))
sketch1.addConstraint(Sketcher.Constraint("DistanceX", 2, 3, -1, 1, Q("2.9879 in")))
pad1 = body.newObject("PartDesign::Pad", "Pad")
pad1.Profile = sketch1
pad1.Length = Q("17.5 in")

doc.recompute()
